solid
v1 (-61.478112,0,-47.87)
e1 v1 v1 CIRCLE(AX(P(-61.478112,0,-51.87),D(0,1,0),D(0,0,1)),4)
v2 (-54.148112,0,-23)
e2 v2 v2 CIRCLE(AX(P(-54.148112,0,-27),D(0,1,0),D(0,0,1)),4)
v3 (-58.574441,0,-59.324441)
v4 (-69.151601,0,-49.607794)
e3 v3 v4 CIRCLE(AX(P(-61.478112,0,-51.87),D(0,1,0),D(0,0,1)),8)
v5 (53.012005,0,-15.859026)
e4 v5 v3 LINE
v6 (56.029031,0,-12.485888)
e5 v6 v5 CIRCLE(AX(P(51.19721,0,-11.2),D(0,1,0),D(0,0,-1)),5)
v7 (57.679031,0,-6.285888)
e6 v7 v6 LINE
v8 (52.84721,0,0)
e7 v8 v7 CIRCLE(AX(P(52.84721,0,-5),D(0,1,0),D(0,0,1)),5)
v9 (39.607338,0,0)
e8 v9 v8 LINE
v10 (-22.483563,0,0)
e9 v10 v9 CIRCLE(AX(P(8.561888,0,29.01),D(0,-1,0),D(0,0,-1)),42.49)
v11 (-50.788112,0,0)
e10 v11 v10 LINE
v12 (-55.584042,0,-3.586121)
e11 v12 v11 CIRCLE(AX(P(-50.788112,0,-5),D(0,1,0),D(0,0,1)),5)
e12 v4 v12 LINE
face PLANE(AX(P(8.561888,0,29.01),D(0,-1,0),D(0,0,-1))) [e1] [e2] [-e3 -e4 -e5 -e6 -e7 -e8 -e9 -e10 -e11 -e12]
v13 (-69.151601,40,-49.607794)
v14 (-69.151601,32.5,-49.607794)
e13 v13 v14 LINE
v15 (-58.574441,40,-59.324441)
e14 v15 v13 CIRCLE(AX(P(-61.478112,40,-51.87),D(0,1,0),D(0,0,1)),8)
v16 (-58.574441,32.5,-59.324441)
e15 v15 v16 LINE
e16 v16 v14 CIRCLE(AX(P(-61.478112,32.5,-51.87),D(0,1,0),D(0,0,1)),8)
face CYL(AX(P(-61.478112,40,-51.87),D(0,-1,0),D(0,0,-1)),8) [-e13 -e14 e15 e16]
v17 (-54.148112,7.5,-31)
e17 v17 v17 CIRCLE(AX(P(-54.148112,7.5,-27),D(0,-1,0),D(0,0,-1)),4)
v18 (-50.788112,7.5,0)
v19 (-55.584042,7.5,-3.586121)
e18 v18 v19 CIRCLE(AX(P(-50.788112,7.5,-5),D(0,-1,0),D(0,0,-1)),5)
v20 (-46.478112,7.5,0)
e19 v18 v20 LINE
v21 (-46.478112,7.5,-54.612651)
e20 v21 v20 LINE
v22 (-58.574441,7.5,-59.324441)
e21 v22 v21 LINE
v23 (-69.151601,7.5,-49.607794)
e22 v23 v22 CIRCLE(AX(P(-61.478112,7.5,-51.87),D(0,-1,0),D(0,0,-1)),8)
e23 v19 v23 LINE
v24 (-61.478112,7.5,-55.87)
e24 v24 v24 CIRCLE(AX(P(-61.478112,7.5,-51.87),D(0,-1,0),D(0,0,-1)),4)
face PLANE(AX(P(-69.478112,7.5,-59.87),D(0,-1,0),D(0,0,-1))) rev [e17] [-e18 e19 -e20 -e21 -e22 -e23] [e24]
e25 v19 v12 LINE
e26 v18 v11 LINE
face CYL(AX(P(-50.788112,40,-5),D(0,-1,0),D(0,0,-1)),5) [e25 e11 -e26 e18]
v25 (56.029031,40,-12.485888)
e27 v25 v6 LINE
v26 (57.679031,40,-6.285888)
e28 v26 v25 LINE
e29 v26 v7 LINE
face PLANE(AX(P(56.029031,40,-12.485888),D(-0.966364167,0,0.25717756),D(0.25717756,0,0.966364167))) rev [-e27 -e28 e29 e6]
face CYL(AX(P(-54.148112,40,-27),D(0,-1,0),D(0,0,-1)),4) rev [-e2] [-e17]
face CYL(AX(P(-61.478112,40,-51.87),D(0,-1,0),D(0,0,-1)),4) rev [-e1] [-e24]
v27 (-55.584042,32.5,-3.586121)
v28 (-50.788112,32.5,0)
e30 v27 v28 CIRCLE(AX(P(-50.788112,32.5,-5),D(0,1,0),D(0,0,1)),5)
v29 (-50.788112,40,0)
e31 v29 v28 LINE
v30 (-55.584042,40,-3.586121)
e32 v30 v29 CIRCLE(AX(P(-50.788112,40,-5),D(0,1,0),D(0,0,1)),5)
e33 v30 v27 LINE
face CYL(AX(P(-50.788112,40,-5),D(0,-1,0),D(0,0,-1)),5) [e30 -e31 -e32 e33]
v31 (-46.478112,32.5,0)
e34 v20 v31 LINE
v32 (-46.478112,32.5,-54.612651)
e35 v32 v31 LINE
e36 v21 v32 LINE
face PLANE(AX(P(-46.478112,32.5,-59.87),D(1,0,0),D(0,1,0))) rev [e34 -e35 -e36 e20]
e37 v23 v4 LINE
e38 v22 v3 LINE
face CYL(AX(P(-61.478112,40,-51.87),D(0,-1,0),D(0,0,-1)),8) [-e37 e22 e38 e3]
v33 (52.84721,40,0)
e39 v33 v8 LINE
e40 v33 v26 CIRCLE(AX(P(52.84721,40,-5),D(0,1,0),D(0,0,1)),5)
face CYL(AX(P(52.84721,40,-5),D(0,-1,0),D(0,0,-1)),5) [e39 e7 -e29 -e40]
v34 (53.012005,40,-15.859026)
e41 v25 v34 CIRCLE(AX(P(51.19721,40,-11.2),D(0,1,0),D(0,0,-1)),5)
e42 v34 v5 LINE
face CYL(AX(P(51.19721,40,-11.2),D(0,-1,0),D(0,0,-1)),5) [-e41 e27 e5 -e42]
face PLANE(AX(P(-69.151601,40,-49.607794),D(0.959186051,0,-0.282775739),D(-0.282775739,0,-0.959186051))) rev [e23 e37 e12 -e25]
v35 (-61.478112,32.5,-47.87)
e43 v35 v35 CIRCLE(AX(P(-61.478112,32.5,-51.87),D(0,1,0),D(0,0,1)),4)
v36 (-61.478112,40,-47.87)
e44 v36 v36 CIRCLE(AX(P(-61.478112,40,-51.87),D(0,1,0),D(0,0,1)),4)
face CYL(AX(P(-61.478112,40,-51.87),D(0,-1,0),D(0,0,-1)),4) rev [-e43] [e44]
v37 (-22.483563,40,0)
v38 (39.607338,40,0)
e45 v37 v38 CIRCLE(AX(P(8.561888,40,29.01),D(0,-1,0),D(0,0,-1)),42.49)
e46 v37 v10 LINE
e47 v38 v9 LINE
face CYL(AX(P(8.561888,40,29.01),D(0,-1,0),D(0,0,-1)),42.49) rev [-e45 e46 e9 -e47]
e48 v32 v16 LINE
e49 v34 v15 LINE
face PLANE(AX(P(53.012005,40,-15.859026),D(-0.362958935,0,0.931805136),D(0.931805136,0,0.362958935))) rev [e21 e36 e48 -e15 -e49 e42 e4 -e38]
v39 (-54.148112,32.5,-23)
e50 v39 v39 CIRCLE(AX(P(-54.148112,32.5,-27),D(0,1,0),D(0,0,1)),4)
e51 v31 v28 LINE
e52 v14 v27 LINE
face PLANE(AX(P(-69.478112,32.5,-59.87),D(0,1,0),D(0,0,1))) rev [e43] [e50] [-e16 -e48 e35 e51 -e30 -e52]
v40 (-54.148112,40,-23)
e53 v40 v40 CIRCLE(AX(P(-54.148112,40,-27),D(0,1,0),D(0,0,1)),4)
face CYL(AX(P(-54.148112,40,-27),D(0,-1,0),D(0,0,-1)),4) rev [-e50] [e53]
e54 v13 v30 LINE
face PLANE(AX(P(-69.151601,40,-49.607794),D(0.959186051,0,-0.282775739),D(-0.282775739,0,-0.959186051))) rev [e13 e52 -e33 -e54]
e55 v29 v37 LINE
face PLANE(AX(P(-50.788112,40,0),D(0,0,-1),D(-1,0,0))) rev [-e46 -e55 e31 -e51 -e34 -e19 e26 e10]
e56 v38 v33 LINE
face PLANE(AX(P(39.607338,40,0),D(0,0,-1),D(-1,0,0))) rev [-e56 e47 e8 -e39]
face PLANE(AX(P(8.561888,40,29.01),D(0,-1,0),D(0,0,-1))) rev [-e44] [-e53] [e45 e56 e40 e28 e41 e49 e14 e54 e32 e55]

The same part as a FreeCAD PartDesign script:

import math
import FreeCAD as App
import Part
import Sketcher

V = App.Vector
Q = App.Units.Quantity

doc = App.newDocument("Part")
body = doc.addObject("PartDesign::Body", "Body")

sketch1 = body.newObject("Sketcher::SketchObject", "Sketch")
sketch1.AttachmentSupport = (doc.getObject("XZ_Plane"), [""])
sketch1.MapMode = "FlatFace"
sketch1.addGeometry([
    Part.LineSegment(V(39.607338, 0, 0), V(52.84721, 0, 0)),
    Part.ArcOfCircle(Part.Circle(V(52.84721, -5, 0), V(0, 0, 1), 5), math.radians(-14.902654), math.radians(90)),
    Part.LineSegment(V(57.679031, -6.285888, 0), V(56.029031, -12.485888, 0)),
    Part.ArcOfCircle(Part.Circle(V(51.19721, -11.2, 0), V(0, 0, 1), 5), math.radians(-68.717974), math.radians(-14.902654)),
    Part.LineSegment(V(53.012005, -15.859026, 0), V(-58.574441, -59.324441, 0)),
    Part.ArcOfCircle(Part.Circle(V(-61.478112, -51.87, 0), V(0, 0, 1), 8), math.radians(163.57406), math.radians(291.282026)),
    Part.LineSegment(V(-69.151601, -49.607794, 0), V(-55.584042, -3.586121, 0)),
    Part.ArcOfCircle(Part.Circle(V(-50.788112, -5, 0), V(0, 0, 1), 5), math.radians(90), math.radians(163.57406)),
    Part.LineSegment(V(-50.788112, 0, 0), V(-22.483563, 0, 0)),
    Part.ArcOfCircle(Part.Circle(V(8.561888, 29.01, 0), V(0, 0, 1), 42.49), math.radians(-136.941174), math.radians(-43.058826)),
    Part.Circle(V(-54.148112, -27, 0), V(0, 0, 1), 4),
    Part.Circle(V(-61.478112, -51.87, 0), V(0, 0, 1), 4),
], False)
sketch1.addConstraint([
    Sketcher.Constraint("Tangent", 0, 2, 1, 2),
    Sketcher.Constraint("Tangent", 1, 1, 2, 1),
    Sketcher.Constraint("Tangent", 2, 2, 3, 2),
    Sketcher.Constraint("Tangent", 3, 1, 4, 1),
    Sketcher.Constraint("Tangent", 4, 2, 5, 2),
    Sketcher.Constraint("Tangent", 5, 1, 6, 1),
    Sketcher.Constraint("Tangent", 6, 2, 7, 2),
    Sketcher.Constraint("Tangent", 7, 1, 8, 1),
    Sketcher.Constraint("Coincident", 8, 2, 9, 1),
    Sketcher.Constraint("Coincident", 9, 2, 0, 1),
    Sketcher.Constraint("Horizontal", 0),
    Sketcher.Constraint("Horizontal", 8),
    Sketcher.Constraint("Coincident", 11, 3, 5, 3),
    Sketcher.Constraint("Equal", 1, 3),
    Sketcher.Constraint("Equal", 3, 7),
    Sketcher.Constraint("Equal", 10, 11),
    Sketcher.Constraint("PointOnObject", 0, 2, -1),
    Sketcher.Constraint("PointOnObject", 7, 1, -1),
    Sketcher.Constraint("Diameter", 10, Q("8 mm")),
    Sketcher.Constraint("Radius", 1, Q("5 mm")),
    Sketcher.Constraint("Radius", 5, Q("8 mm")),
    Sketcher.Constraint("Radius", 9, Q("42.49 mm")),
    Sketcher.Constraint("DistanceY", 10, 3, -1, 1, Q("27 mm")),
    Sketcher.Constraint("DistanceY", 3, 3, -1, 1, Q("11.2 mm")),
    Sketcher.Constraint("DistanceY", 5, 3, -1, 1, Q("51.87 mm")),
    Sketcher.Constraint("DistanceY", -1, 1, 9, 3, Q("29.01 mm")),
    Sketcher.Constraint("DistanceX", 3, 3, 1, 3, Q("1.65 mm")),
    Sketcher.Constraint("DistanceX", 5, 3, 7, 3, Q("10.69 mm")),
    Sketcher.Constraint("DistanceX", 7, 3, 9, 3, Q("59.35 mm")),
    Sketcher.Constraint("DistanceX", 10, 3, 7, 3, Q("3.36 mm")),
    Sketcher.Constraint("DistanceX", 0, 1, 0, 2, Q("13.239871 mm")),
    Sketcher.Constraint("DistanceX", 5, 1, -1, 1, Q("69.151601 mm")),
])
pad1 = body.newObject("PartDesign::Pad", "Pad")
pad1.Profile = sketch1
pad1.Length = 40
pad1.Reversed = True

sketch2 = body.newObject("Sketcher::SketchObject", "Sketch001")
sketch2.AttachmentSupport = (doc.getObject("XY_Plane"), [""])
sketch2.MapMode = "FlatFace"
sketch2.addGeometry([
    Part.LineSegment(V(-69.478112, 32.5, 0), V(-69.478112, 7.5, 0)),
    Part.LineSegment(V(-69.478112, 7.5, 0), V(-46.478112, 7.5, 0)),
    Part.LineSegment(V(-46.478112, 7.5, 0), V(-46.478112, 32.5, 0)),
    Part.LineSegment(V(-46.478112, 32.5, 0), V(-69.478112, 32.5, 0)),
], False)
sketch2.addConstraint([
    Sketcher.Constraint("Coincident", 0, 2, 1, 1),
    Sketcher.Constraint("Coincident", 1, 2, 2, 1),
    Sketcher.Constraint("Coincident", 2, 2, 3, 1),
    Sketcher.Constraint("Coincident", 3, 2, 0, 1),
    Sketcher.Constraint("Vertical", 0),
    Sketcher.Constraint("Horizontal", 1),
    Sketcher.Constraint("Vertical", 2),
    Sketcher.Constraint("Horizontal", 3),
    Sketcher.Constraint("DistanceX", 1, 1, 1, 2, Q("23 mm")),
    Sketcher.Constraint("DistanceY", 0, 2, 0, 1, Q("25 mm")),
    Sketcher.Constraint("DistanceY", -1, 1, 0, 2, Q("7.5 mm")),
    Sketcher.Constraint("DistanceX", 0, 2, -1, 1, Q("69.478112 mm")),
])
pocket1 = body.newObject("PartDesign::Pocket", "Pocket")
pocket1.Profile = sketch2
pocket1.Type = "ThroughAll"

doc.recompute()
